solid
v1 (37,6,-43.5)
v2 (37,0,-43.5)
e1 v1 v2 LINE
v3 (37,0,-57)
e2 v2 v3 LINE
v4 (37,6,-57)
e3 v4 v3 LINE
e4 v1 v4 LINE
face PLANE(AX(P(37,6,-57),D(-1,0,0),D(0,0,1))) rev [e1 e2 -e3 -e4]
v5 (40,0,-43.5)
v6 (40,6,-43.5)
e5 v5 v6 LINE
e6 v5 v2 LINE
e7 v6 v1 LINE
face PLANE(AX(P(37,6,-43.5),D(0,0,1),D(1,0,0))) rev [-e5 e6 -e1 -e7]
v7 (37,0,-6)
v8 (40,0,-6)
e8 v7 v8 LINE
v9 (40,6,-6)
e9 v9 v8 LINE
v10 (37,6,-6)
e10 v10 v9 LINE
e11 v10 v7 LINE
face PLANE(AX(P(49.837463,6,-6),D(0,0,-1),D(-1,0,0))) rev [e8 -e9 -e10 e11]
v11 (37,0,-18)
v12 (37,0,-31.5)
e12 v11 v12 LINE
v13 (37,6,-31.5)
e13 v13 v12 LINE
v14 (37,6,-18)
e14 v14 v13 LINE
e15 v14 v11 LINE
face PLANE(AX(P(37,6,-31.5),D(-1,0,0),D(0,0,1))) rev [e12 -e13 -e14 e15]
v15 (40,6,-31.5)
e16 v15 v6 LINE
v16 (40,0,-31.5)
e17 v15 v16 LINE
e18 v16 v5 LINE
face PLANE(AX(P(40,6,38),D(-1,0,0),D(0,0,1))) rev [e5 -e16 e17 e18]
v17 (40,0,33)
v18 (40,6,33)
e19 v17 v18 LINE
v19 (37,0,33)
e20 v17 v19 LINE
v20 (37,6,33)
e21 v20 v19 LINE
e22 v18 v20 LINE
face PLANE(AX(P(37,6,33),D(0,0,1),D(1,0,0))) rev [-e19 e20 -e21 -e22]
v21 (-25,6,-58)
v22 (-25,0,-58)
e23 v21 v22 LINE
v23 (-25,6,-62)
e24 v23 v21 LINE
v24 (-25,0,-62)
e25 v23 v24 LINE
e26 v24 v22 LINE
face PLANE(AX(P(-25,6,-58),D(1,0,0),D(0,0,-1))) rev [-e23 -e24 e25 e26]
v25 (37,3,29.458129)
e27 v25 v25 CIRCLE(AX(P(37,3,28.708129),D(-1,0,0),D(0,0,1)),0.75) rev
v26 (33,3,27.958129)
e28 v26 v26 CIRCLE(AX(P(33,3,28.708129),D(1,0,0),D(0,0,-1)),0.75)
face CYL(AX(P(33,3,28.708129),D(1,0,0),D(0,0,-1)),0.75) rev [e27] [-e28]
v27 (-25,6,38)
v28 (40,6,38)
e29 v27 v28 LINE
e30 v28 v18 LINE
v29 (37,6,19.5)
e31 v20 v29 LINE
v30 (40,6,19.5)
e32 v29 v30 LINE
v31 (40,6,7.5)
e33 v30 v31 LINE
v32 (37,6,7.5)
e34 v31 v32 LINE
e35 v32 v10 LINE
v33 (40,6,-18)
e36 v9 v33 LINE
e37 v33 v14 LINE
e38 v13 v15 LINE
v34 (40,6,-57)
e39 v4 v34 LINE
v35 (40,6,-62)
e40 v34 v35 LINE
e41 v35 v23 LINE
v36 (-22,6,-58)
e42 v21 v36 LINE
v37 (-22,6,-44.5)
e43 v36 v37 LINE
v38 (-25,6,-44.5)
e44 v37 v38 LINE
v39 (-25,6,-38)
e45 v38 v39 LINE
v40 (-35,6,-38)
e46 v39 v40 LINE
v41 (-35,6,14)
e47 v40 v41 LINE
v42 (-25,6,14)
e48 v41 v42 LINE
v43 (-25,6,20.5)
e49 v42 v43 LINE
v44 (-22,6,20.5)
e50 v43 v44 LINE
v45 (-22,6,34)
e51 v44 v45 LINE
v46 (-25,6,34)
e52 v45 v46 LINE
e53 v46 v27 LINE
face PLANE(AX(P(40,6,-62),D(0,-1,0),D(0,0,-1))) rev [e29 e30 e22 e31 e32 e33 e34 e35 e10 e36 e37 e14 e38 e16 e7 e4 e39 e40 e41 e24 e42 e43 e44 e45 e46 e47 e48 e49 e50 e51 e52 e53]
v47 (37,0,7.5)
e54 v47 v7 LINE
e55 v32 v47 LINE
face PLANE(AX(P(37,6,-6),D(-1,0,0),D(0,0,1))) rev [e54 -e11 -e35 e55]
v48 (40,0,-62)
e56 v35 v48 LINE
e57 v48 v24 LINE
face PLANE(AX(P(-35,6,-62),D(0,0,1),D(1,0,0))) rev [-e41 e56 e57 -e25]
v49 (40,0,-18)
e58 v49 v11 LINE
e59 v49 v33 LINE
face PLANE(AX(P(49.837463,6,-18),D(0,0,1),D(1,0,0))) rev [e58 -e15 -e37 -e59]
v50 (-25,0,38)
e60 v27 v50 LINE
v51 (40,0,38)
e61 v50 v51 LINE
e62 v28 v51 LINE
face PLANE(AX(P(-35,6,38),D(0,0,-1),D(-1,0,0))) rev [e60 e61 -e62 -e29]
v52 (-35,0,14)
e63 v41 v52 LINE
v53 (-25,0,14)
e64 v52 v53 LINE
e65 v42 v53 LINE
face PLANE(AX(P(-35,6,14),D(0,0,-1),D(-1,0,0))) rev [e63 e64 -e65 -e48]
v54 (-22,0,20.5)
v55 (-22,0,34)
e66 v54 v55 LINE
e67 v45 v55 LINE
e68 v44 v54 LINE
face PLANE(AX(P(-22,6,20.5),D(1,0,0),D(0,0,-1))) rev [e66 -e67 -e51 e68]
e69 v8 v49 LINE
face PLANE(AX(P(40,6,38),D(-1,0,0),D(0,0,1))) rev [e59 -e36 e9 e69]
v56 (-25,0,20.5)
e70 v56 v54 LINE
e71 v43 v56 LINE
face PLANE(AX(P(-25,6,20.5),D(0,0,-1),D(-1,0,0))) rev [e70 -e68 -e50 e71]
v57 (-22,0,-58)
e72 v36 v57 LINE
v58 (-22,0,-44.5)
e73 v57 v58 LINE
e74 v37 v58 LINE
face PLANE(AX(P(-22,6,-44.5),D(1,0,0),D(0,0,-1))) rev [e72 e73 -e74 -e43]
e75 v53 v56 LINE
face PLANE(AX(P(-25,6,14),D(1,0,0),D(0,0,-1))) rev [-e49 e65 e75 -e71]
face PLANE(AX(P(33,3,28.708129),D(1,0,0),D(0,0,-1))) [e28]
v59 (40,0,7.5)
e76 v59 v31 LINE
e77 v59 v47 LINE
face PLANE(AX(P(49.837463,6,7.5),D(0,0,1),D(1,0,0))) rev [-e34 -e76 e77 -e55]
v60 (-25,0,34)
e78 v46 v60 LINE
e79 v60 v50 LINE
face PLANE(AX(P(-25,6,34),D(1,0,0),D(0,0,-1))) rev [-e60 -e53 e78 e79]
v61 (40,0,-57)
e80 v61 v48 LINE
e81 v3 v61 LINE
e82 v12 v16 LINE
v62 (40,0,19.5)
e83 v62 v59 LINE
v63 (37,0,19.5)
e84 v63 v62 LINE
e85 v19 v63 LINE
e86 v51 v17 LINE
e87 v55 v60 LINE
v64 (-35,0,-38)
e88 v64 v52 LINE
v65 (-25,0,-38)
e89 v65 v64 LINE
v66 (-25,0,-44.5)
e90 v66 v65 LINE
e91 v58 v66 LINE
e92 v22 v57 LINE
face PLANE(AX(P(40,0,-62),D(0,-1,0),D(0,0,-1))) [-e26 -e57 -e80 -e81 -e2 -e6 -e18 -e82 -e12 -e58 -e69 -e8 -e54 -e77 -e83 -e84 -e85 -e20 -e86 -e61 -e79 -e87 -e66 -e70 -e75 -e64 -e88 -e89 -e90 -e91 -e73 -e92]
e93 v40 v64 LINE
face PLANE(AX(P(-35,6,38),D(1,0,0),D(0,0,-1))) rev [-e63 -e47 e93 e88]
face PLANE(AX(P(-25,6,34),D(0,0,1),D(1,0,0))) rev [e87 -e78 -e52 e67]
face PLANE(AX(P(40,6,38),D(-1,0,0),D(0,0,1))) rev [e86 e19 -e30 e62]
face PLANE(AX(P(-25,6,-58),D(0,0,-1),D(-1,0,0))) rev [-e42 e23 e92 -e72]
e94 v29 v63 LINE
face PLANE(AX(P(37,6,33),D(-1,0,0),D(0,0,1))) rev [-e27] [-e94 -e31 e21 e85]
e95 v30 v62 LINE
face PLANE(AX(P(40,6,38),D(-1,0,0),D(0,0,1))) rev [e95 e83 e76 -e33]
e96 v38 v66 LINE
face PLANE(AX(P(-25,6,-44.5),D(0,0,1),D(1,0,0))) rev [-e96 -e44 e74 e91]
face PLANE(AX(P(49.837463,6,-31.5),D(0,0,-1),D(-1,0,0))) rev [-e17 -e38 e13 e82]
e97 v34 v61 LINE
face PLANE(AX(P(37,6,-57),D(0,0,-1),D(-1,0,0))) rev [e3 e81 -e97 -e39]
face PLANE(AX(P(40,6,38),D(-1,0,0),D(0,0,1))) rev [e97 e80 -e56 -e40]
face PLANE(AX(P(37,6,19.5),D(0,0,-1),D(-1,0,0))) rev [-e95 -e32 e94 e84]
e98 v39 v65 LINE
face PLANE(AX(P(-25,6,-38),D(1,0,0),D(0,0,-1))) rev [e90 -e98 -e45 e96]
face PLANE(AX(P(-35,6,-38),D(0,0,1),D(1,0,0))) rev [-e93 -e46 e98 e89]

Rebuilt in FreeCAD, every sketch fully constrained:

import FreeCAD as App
import Part
import Sketcher

V = App.Vector
Q = App.Units.Quantity

doc = App.newDocument("Part")
body = doc.addObject("PartDesign::Body", "Body")

sketch1 = body.newObject("Sketcher::SketchObject", "Sketch")
sketch1.AttachmentSupport = (doc.getObject("XZ_Plane"), [""])
sketch1.MapMode = "FlatFace"
sketch1.addGeometry([
    Part.LineSegment(V(-35, -62, 0), V(-35, 38, 0)),
    Part.LineSegment(V(-35, 38, 0), V(40, 38, 0)),
    Part.LineSegment(V(40, 38, 0), V(40, -62, 0)),
    Part.LineSegment(V(40, -62, 0), V(-35, -62, 0)),
], False)
sketch1.addConstraint([
    Sketcher.Constraint("Coincident", 0, 2, 1, 1),
    Sketcher.Constraint("Coincident", 1, 2, 2, 1),
    Sketcher.Constraint("Coincident", 2, 2, 3, 1),
    Sketcher.Constraint("Coincident", 3, 2, 0, 1),
    Sketcher.Constraint("Vertical", 0),
    Sketcher.Constraint("Horizontal", 1),
    Sketcher.Constraint("Vertical", 2),
    Sketcher.Constraint("Horizontal", 3),
    Sketcher.Constraint("DistanceX", 1, 1, 1, 2, Q("75 mm")),
    Sketcher.Constraint("DistanceY", 0, 1, 0, 2, Q("100 mm")),
    Sketcher.Constraint("DistanceX", 0, 2, -1, 1, Q("35 mm")),
    Sketcher.Constraint("DistanceY", -1, 1, 0, 2, Q("38 mm")),
])
pad1 = body.newObject("PartDesign::Pad", "Pad")
pad1.Profile = sketch1
pad1.Length = 6
pad1.Reversed = True

sketch2 = body.newObject("Sketcher::SketchObject", "Sketch001")
sketch2.AttachmentSupport = (doc.getObject("YZ_Plane"), [""])
sketch2.MapMode = "FlatFace"
sketch2.AttachmentOffset = App.Placement(V(0, 0, 40), App.Rotation())
sketch2.addGeometry(Part.Circle(V(3, 28.7, 0), V(0, 0, 1), 0.8), False)
sketch2.addConstraint([
    Sketcher.Constraint("Diameter", 0, Q("1.5 mm")),
    Sketcher.Constraint("DistanceX", -1, 1, 0, 3, Q("3 mm")),
    Sketcher.Constraint("DistanceY", -1, 1, 0, 3, Q("28.708129 mm")),
])
pocket1 = body.newObject("PartDesign::Pocket", "Pocket")
pocket1.Profile = sketch2
pocket1.Length = 7

sketch3 = body.newObject("Sketcher::SketchObject", "Sketch002")
sketch3.AttachmentSupport = (doc.getObject("XZ_Plane"), [""])
sketch3.MapMode = "FlatFace"
sketch3.addGeometry([
    Part.LineSegment(V(37, 33, 0), V(37, 19.5, 0)),
    Part.LineSegment(V(37, 19.5, 0), V(49.6, 19.5, 0)),
    Part.LineSegment(V(49.6, 19.5, 0), V(49.6, 33, 0)),
    Part.LineSegment(V(49.6, 33, 0), V(37, 33, 0)),
    Part.LineSegment(V(37, -43.5, 0), V(37, -57, 0)),
    Part.LineSegment(V(37, -57, 0), V(49.9, -57, 0)),
    Part.LineSegment(V(49.9, -57, 0), V(49.9, -43.5, 0)),
    Part.LineSegment(V(49.9, -43.5, 0), V(37, -43.5, 0)),
    Part.LineSegment(V(-35, -38, 0), V(-35, -62, 0)),
    Part.LineSegment(V(-35, -62, 0), V(-25, -62, 0)),
    Part.LineSegment(V(-25, -62, 0), V(-25, -58, 0)),
    Part.LineSegment(V(-25, -58, 0), V(-22, -58, 0)),
    Part.LineSegment(V(-22, -58, 0), V(-22, -44.5, 0)),
    Part.LineSegment(V(-22, -44.5, 0), V(-25, -44.5, 0)),
    Part.LineSegment(V(-25, -44.5, 0), V(-25, -38, 0)),
    Part.LineSegment(V(-25, -38, 0), V(-35, -38, 0)),
    Part.LineSegment(V(37, 7.5, 0), V(37, -6, 0)),
    Part.LineSegment(V(37, -6, 0), V(49.8, -6, 0)),
    Part.LineSegment(V(49.8, -6, 0), V(49.8, 7.5, 0)),
    Part.LineSegment(V(49.8, 7.5, 0), V(37, 7.5, 0)),
    Part.LineSegment(V(37, -18, 0), V(37, -31.5, 0)),
    Part.LineSegment(V(37, -31.5, 0), V(49.8, -31.5, 0)),
    Part.LineSegment(V(49.8, -31.5, 0), V(49.8, -18, 0)),
    Part.LineSegment(V(49.8, -18, 0), V(37, -18, 0)),
    Part.LineSegment(V(-35, 14, 0), V(-25, 14, 0)),
    Part.LineSegment(V(-25, 14, 0), V(-25, 20.5, 0)),
    Part.LineSegment(V(-25, 20.5, 0), V(-22, 20.5, 0)),
    Part.LineSegment(V(-22, 20.5, 0), V(-22, 34, 0)),
    Part.LineSegment(V(-22, 34, 0), V(-25, 34, 0)),
    Part.LineSegment(V(-25, 34, 0), V(-25, 38, 0)),
    Part.LineSegment(V(-25, 38, 0), V(-35, 38, 0)),
    Part.LineSegment(V(-35, 38, 0), V(-35, 14, 0)),
], False)
sketch3.addConstraint([
    Sketcher.Constraint("Coincident", 0, 2, 1, 1),
    Sketcher.Constraint("Coincident", 1, 2, 2, 1),
    Sketcher.Constraint("Coincident", 2, 2, 3, 1),
    Sketcher.Constraint("Coincident", 3, 2, 0, 1),
    Sketcher.Constraint("Coincident", 4, 2, 5, 1),
    Sketcher.Constraint("Coincident", 5, 2, 6, 1),
    Sketcher.Constraint("Coincident", 6, 2, 7, 1),
    Sketcher.Constraint("Coincident", 7, 2, 4, 1),
    Sketcher.Constraint("Coincident", 8, 2, 9, 1),
    Sketcher.Constraint("Coincident", 9, 2, 10, 1),
    Sketcher.Constraint("Coincident", 10, 2, 11, 1),
    Sketcher.Constraint("Coincident", 11, 2, 12, 1),
    Sketcher.Constraint("Coincident", 12, 2, 13, 1),
    Sketcher.Constraint("Coincident", 13, 2, 14, 1),
    Sketcher.Constraint("Coincident", 14, 2, 15, 1),
    Sketcher.Constraint("Coincident", 15, 2, 8, 1),
    Sketcher.Constraint("Coincident", 16, 2, 17, 1),
    Sketcher.Constraint("Coincident", 17, 2, 18, 1),
    Sketcher.Constraint("Coincident", 18, 2, 19, 1),
    Sketcher.Constraint("Coincident", 19, 2, 16, 1),
    Sketcher.Constraint("Coincident", 20, 2, 21, 1),
    Sketcher.Constraint("Coincident", 21, 2, 22, 1),
    Sketcher.Constraint("Coincident", 22, 2, 23, 1),
    Sketcher.Constraint("Coincident", 23, 2, 20, 1),
    Sketcher.Constraint("Coincident", 24, 2, 25, 1),
    Sketcher.Constraint("Coincident", 25, 2, 26, 1),
    Sketcher.Constraint("Coincident", 26, 2, 27, 1),
    Sketcher.Constraint("Coincident", 27, 2, 28, 1),
    Sketcher.Constraint("Coincident", 28, 2, 29, 1),
    Sketcher.Constraint("Coincident", 29, 2, 30, 1),
    Sketcher.Constraint("Coincident", 30, 2, 31, 1),
    Sketcher.Constraint("Coincident", 31, 2, 24, 1),
    Sketcher.Constraint("Vertical", 0),
    Sketcher.Constraint("Horizontal", 1),
    Sketcher.Constraint("Vertical", 2),
    Sketcher.Constraint("Horizontal", 3),
    Sketcher.Constraint("Vertical", 4),
    Sketcher.Constraint("Horizontal", 5),
    Sketcher.Constraint("Vertical", 6),
    Sketcher.Constraint("Horizontal", 7),
    Sketcher.Constraint("Vertical", 8),
    Sketcher.Constraint("Horizontal", 9),
    Sketcher.Constraint("Vertical", 10),
    Sketcher.Constraint("Horizontal", 11),
    Sketcher.Constraint("Vertical", 12),
    Sketcher.Constraint("Horizontal", 13),
    Sketcher.Constraint("Vertical", 14),
    Sketcher.Constraint("Horizontal", 15),
    Sketcher.Constraint("Vertical", 16),
    Sketcher.Constraint("Horizontal", 17),
    Sketcher.Constraint("Vertical", 18),
    Sketcher.Constraint("Horizontal", 19),
    Sketcher.Constraint("Vertical", 20),
    Sketcher.Constraint("Horizontal", 21),
    Sketcher.Constraint("Vertical", 22),
    Sketcher.Constraint("Horizontal", 23),
    Sketcher.Constraint("Horizontal", 24),
    Sketcher.Constraint("Vertical", 25),
    Sketcher.Constraint("Horizontal", 26),
    Sketcher.Constraint("Vertical", 27),
    Sketcher.Constraint("Horizontal", 28),
    Sketcher.Constraint("Vertical", 29),
    Sketcher.Constraint("Horizontal", 30),
    Sketcher.Constraint("Vertical", 31),
    Sketcher.Constraint("Symmetric", 14, 2, 29, 2, -1),
    Sketcher.Constraint("Vertical", 3, 2, 4, 2),
    Sketcher.Constraint("Vertical", 10, 2, 13, 2),
    Sketcher.Constraint("Vertical", 7, 2, 16, 2),
    Sketcher.Constraint("Vertical", 19, 2, 20, 2),
    Sketcher.Constraint("Vertical", 18, 2, 21, 2),
    Sketcher.Constraint("Vertical", 14, 2, 24, 2),
    Sketcher.Constraint("Vertical", 12, 2, 26, 2),
    Sketcher.Constraint("Vertical", 15, 2, 30, 2),
    Sketcher.Constraint("Equal", 2, 4),
    Sketcher.Constraint("Equal", 6, 12),
    Sketcher.Constraint("Equal", 12, 16),
    Sketcher.Constraint("Equal", 18, 20),
    Sketcher.Constraint("Equal", 14, 25),
    Sketcher.Constraint("Equal", 22, 27),
    Sketcher.Constraint("Equal", 10, 29),
    Sketcher.Constraint("DistanceX", 9, 1, 9, 2, Q("10 mm")),
    Sketcher.Constraint("DistanceX", 11, 1, 11, 2, Q("3 mm")),
    Sketcher.Constraint("DistanceY", 8, 2, 8, 1, Q("24 mm")),
    Sketcher.Constraint("DistanceY", 10, 1, 10, 2, Q("4 mm")),
    Sketcher.Constraint("DistanceY", 0, 2, 0, 1, Q("13.5 mm")),
    Sketcher.Constraint("DistanceX", -1, 1, 0, 2, Q("37 mm")),
    Sketcher.Constraint("DistanceY", -1, 1, 2, 2, Q("33 mm")),
    Sketcher.Constraint("DistanceY", 4, 2, -1, 1, Q("57 mm")),
    Sketcher.Constraint("DistanceX", 8, 2, -1, 1, Q("35 mm")),
    Sketcher.Constraint("DistanceY", 8, 2, -1, 1, Q("62 mm")),
    Sketcher.Constraint("DistanceY", 16, 2, -1, 1, Q("6 mm")),
    Sketcher.Constraint("DistanceY", 22, 2, -1, 1, Q("18 mm")),
    Sketcher.Constraint("DistanceX", 1, 1, 1, 2, Q("12.625539 mm")),
    Sketcher.Constraint("DistanceX", 5, 1, 5, 2, Q("12.874809 mm")),
    Sketcher.Constraint("DistanceX", 17, 1, 17, 2, Q("12.837463 mm")),
])
pocket2 = body.newObject("PartDesign::Pocket", "Pocket001")
pocket2.Profile = sketch3
pocket2.Type = "ThroughAll"

doc.recompute()
